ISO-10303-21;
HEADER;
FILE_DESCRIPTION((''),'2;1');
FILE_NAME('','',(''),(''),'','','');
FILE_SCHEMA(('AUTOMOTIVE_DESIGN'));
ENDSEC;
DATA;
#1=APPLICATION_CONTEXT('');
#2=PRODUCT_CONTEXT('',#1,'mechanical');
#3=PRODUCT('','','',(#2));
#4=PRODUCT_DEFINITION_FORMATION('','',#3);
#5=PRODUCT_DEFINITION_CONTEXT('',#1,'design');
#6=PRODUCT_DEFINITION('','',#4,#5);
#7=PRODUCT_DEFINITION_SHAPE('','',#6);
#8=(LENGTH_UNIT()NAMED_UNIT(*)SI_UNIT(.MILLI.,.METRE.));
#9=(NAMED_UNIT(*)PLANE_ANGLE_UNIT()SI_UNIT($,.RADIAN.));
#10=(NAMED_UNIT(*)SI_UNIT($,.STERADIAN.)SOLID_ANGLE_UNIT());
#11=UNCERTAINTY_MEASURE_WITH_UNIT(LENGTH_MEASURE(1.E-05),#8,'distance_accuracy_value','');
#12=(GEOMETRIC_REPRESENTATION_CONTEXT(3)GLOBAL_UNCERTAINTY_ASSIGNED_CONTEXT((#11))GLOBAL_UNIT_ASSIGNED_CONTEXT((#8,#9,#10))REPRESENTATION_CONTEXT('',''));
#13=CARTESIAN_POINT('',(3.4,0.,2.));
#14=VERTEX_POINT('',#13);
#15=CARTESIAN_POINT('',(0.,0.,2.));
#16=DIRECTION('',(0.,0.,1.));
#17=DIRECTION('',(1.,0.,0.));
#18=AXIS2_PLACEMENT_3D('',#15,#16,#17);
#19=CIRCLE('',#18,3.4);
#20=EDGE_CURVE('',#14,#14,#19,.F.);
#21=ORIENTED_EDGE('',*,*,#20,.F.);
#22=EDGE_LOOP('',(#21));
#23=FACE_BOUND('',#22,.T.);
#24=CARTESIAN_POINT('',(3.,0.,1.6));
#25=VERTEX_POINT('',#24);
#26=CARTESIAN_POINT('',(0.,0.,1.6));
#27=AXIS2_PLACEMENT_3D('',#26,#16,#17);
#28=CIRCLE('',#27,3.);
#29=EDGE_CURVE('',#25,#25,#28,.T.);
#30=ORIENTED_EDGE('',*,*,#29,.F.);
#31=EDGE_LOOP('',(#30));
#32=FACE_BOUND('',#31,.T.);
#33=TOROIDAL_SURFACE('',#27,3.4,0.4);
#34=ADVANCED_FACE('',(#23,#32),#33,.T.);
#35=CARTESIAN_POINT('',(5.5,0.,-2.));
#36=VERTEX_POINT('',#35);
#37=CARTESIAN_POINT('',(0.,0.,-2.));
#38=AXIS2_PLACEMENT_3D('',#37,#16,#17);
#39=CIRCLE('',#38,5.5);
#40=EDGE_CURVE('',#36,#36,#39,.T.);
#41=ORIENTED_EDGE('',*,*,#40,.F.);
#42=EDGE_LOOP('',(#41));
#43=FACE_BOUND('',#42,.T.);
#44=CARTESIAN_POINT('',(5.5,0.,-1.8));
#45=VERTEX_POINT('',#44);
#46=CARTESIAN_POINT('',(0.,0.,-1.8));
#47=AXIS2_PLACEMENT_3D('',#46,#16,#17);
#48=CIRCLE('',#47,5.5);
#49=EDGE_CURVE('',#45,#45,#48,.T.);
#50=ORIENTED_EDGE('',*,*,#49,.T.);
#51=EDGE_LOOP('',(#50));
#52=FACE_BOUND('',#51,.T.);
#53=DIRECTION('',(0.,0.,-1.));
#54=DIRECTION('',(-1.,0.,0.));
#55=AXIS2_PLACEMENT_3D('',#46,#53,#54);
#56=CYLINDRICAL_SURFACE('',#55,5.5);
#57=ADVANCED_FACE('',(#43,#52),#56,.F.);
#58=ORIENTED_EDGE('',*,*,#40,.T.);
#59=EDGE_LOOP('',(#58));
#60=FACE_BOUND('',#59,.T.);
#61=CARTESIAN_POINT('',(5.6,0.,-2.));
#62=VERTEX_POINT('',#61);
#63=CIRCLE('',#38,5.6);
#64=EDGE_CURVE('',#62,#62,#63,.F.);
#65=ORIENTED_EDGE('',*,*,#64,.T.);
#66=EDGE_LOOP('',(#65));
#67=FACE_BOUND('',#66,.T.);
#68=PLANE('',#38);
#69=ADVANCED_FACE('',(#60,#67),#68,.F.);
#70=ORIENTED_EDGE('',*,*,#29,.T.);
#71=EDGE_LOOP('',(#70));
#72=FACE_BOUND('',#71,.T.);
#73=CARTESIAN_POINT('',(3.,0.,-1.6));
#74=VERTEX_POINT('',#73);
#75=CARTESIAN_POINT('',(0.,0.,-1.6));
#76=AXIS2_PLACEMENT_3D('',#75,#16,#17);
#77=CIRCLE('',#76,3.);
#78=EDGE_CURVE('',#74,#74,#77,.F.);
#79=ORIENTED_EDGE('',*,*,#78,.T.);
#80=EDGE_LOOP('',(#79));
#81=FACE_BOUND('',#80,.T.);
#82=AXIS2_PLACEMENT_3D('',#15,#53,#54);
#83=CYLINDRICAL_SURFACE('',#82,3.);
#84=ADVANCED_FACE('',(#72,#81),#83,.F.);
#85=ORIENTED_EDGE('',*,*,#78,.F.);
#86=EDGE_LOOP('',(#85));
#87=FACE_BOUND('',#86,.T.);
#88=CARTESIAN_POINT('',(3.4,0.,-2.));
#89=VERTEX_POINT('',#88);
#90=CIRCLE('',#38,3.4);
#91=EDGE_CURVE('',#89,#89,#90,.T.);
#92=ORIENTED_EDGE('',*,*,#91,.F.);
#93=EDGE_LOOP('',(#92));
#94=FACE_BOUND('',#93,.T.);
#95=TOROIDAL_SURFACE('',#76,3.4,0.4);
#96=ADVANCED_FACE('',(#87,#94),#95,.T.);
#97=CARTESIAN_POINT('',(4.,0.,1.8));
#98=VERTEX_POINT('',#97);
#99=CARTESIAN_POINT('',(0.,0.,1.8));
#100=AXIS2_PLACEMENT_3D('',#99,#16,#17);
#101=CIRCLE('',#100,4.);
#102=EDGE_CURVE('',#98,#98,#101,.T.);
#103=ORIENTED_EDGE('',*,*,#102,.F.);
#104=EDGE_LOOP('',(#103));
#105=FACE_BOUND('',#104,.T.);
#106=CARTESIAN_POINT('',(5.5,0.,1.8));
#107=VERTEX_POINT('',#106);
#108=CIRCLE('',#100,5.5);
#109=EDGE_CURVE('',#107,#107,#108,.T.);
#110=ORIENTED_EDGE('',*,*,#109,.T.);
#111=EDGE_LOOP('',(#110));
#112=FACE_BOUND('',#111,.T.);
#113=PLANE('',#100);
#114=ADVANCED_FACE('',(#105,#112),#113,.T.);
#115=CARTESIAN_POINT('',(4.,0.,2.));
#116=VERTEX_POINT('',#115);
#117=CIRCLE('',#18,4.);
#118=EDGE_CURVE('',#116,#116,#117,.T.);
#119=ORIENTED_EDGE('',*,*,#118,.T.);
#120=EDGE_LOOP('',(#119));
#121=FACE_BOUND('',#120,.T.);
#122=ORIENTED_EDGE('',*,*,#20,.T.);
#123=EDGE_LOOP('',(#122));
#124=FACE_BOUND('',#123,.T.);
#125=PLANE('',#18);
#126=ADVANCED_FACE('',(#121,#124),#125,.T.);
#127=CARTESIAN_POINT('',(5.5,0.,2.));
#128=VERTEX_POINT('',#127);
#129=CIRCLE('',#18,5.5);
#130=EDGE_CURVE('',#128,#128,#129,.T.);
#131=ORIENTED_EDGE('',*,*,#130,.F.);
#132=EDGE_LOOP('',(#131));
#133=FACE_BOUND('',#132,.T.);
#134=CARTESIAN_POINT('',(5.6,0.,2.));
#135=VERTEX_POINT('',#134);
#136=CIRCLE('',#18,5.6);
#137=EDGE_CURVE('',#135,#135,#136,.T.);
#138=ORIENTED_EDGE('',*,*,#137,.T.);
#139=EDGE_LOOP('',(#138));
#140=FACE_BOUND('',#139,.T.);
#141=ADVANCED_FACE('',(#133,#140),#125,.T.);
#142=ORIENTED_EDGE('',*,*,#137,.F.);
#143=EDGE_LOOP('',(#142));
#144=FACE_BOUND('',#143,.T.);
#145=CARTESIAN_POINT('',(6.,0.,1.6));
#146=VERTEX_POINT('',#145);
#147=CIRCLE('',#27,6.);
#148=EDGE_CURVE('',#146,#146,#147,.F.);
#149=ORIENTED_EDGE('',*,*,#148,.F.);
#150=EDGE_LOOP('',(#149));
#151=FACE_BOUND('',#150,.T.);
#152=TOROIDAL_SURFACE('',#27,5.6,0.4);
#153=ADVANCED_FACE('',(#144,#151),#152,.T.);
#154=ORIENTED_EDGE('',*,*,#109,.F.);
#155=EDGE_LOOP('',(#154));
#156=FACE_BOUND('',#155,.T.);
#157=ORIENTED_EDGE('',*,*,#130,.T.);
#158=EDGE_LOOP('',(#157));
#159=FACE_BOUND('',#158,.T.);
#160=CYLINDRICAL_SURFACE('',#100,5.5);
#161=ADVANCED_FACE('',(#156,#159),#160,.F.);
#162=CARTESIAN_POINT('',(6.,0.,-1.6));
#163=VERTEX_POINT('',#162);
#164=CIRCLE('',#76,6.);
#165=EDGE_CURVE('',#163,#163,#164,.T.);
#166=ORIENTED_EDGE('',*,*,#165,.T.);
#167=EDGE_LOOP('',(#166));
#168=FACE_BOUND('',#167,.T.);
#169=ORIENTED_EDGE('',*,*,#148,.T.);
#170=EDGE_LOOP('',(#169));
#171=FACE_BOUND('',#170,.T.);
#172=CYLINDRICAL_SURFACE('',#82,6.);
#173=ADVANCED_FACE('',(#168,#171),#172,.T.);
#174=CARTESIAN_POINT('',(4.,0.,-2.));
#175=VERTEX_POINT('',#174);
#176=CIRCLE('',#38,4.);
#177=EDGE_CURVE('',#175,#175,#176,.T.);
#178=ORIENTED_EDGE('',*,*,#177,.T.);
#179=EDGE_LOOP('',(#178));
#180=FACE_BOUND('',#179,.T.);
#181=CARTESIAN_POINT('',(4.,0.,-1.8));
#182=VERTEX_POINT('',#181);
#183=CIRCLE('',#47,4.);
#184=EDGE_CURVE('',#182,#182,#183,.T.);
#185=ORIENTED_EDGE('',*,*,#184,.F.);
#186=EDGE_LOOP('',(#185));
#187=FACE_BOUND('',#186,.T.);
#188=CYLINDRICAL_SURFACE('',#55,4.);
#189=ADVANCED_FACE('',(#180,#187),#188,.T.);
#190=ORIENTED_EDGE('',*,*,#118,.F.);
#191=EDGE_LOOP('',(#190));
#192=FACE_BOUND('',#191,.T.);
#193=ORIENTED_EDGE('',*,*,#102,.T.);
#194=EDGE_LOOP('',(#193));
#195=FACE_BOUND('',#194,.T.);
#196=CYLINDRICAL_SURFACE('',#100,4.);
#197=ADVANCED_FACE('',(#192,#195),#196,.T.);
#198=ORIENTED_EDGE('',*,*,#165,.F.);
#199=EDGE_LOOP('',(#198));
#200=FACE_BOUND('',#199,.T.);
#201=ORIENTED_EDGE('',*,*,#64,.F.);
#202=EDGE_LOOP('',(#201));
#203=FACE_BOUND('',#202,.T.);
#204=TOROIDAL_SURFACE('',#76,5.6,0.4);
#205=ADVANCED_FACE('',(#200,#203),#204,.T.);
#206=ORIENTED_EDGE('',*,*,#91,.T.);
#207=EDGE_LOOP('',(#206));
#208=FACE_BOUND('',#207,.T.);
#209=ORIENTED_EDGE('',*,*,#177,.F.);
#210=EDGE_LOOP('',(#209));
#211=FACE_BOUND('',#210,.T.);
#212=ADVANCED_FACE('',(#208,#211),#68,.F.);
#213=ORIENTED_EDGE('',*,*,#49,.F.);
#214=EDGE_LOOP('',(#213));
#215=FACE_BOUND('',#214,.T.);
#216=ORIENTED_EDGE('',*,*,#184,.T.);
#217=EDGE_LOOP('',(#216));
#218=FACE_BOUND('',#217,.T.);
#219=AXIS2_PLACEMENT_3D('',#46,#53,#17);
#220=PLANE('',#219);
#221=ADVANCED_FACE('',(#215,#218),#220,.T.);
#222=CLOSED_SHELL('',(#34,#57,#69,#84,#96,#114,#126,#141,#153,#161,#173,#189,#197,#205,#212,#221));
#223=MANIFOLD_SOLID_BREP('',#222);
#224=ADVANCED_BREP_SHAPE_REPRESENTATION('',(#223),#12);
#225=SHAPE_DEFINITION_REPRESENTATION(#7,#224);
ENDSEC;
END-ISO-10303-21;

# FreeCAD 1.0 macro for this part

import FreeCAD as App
import Part
import Sketcher


def edges_at(feature, points):
    """Names of the edges that pass closest to the given points."""
    edges = feature.Shape.Edges
    near = lambda p: min(range(len(edges)), key=lambda i: edges[i].distToShape(Part.Vertex(*p))[0])
    return sorted({f"Edge{near(p) + 1}" for p in points})

doc = App.newDocument("Part")
body = doc.addObject("PartDesign::Body", "Body")

sketch1 = body.newObject("Sketcher::SketchObject", "Sketch")
sketch1.AttachmentSupport = (doc.getObject("XY_Plane"), [""])
sketch1.MapMode = "FlatFace"
sketch1.addGeometry([
    Part.Circle(App.Vector(0, 0, 0), App.Vector(0, 0, 1), 6),
    Part.Circle(App.Vector(0, 0, 0), App.Vector(0, 0, 1), 3),
], False)
sketch1.addConstraint([
    Sketcher.Constraint("Coincident", 0, 3, -1, 1),
    Sketcher.Constraint("Coincident", 1, 3, -1, 1),
    Sketcher.Constraint("Diameter", 0, 12.0),
    Sketcher.Constraint("Diameter", 1, 6.0),
])
pad1 = body.newObject("PartDesign::Pad", "Pad")
pad1.Profile = sketch1
pad1.Length = 4
pad1.Midplane = True

sketch2 = body.newObject("Sketcher::SketchObject", "Sketch001")
sketch2.AttachmentSupport = (doc.getObject("XY_Plane"), [""])
sketch2.MapMode = "FlatFace"
sketch2.AttachmentOffset = App.Placement(App.Vector(0, 0, 2), App.Rotation())
sketch2.addGeometry([
    Part.Circle(App.Vector(0, 0, 0), App.Vector(0, 0, 1), 5.5),
    Part.Circle(App.Vector(0, 0, 0), App.Vector(0, 0, 1), 4),
], False)
sketch2.addConstraint([
    Sketcher.Constraint("Coincident", 0, 3, -1, 1),
    Sketcher.Constraint("Coincident", 1, 3, -1, 1),
    Sketcher.Constraint("Diameter", 0, 11.0),
    Sketcher.Constraint("Diameter", 1, 8.0),
])
pocket1 = body.newObject("PartDesign::Pocket", "Pocket")
pocket1.Profile = sketch2
pocket1.Length = 0.2
doc.recompute()

mirrored = body.newObject("PartDesign::Mirrored", "Mirrored")
mirrored.Originals = [pocket1]
mirrored.MirrorPlane = (doc.getObject("XY_Plane"), [""])
body.Tip = mirrored
doc.recompute()

fillet = body.newObject("PartDesign::Fillet", "Fillet")
fillet.Base = (mirrored, edges_at(mirrored, [
    (-6, 0, -2),
    (-6, 0, 2),
    (-3, 0, -2),
    (-3, 0, 2),
]))
fillet.Radius = 0.4

doc.recompute()
